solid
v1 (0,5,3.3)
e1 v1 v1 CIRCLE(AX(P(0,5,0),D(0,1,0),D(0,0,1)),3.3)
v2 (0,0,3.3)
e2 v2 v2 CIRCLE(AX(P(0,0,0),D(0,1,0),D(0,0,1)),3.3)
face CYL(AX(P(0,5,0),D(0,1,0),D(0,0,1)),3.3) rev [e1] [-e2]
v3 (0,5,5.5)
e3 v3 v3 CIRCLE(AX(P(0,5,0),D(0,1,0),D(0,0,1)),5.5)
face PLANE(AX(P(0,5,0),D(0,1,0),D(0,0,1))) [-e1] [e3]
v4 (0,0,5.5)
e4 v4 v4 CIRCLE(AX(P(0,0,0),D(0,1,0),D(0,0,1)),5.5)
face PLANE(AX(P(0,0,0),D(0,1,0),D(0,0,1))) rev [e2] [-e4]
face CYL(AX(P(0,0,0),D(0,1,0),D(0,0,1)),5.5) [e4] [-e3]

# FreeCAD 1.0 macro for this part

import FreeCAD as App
import Part
import Sketcher

V = App.Vector


def add_polygon(sketch, points):
    """Adds a closed chain of lines whose ends are joined by coincident constraints."""
    first, n = sketch.GeometryCount, len(points)
    for a, b in zip(points, points[1:] + points[:1]):
        sketch.addGeometry(Part.LineSegment(App.Vector(*a, 0), App.Vector(*b, 0)), False)
    for i in range(n):
        sketch.addConstraint(Sketcher.Constraint("Coincident", first + i, 2, first + (i + 1) % n, 1))

doc = App.newDocument("Part")
body = doc.addObject("PartDesign::Body", "Body")

sketch1 = body.newObject("Sketcher::SketchObject", "Sketch")
sketch1.AttachmentSupport = (doc.getObject("XZ_Plane"), [""])
sketch1.MapMode = "FlatFace"
add_polygon(sketch1, [(-6, -6), (-6, 6), (6, 6), (6, -6)])
sketch1.addConstraint([
    Sketcher.Constraint("Vertical", 0),
    Sketcher.Constraint("Horizontal", 1),
    Sketcher.Constraint("Vertical", 2),
    Sketcher.Constraint("Horizontal", 3),
    Sketcher.Constraint("Symmetric", 0, 2, 2, 2, -1, 1),
    Sketcher.Constraint("Equal", 3, 0),
    Sketcher.Constraint("DistanceX", 1, 1, 1, 2, 11.0),
])
pad1 = body.newObject("PartDesign::Pad", "Pad")
pad1.Profile = sketch1
pad1.Length = 5
pad1.Reversed = True

sketch2 = body.newObject("Sketcher::SketchObject", "Sketch001")
sketch2.AttachmentSupport = (doc.getObject("XZ_Plane"), [""])
sketch2.MapMode = "FlatFace"
sketch2.AttachmentOffset = App.Placement(V(0, 0, -5), App.Rotation())
sketch2.addGeometry(Part.Circle(V(0, 0, 0), V(0, 0, 1), 3.3), False)
sketch2.addConstraint([
    Sketcher.Constraint("Coincident", 0, 3, -1, 1),
    Sketcher.Constraint("Diameter", 0, 6.6),
])
doc.recompute()
hole = body.newObject("PartDesign::Hole", "Hole")
hole.Profile = sketch2
hole.ThreadType = "None"
hole.Diameter = 6.6
hole.DepthType = "ThroughAll"
hole.Reversed = True

sketch3 = body.newObject("Sketcher::SketchObject", "Sketch002")
sketch3.AttachmentSupport = (doc.getObject("XZ_Plane"), [""])
sketch3.MapMode = "FlatFace"
sketch3.AttachmentOffset = App.Placement(V(0, 0, -5), App.Rotation())
add_polygon(sketch3, [(-8, -8), (-8, 8), (8, 8), (8, -8)])
sketch3.addGeometry(Part.Circle(V(0, 0, 0), V(0, 0, 1), 6), False)
sketch3.addConstraint([
    Sketcher.Constraint("Vertical", 0),
    Sketcher.Constraint("Horizontal", 1),
    Sketcher.Constraint("Vertical", 2),
    Sketcher.Constraint("Horizontal", 3),
    Sketcher.Constraint("Coincident", 4, 3, -1, 1),
    Sketcher.Constraint("Symmetric", 0, 2, 2, 2, -1, 1),
    Sketcher.Constraint("Equal", 3, 0),
    Sketcher.Constraint("Diameter", 4, 11.0),
    Sketcher.Constraint("DistanceX", 1, 1, 1, 2, 16.268),
])
pocket1 = body.newObject("PartDesign::Pocket", "Pocket")
pocket1.Profile = sketch3
pocket1.Type = "ThroughAll"
pocket1.Reversed = True

doc.recompute()
